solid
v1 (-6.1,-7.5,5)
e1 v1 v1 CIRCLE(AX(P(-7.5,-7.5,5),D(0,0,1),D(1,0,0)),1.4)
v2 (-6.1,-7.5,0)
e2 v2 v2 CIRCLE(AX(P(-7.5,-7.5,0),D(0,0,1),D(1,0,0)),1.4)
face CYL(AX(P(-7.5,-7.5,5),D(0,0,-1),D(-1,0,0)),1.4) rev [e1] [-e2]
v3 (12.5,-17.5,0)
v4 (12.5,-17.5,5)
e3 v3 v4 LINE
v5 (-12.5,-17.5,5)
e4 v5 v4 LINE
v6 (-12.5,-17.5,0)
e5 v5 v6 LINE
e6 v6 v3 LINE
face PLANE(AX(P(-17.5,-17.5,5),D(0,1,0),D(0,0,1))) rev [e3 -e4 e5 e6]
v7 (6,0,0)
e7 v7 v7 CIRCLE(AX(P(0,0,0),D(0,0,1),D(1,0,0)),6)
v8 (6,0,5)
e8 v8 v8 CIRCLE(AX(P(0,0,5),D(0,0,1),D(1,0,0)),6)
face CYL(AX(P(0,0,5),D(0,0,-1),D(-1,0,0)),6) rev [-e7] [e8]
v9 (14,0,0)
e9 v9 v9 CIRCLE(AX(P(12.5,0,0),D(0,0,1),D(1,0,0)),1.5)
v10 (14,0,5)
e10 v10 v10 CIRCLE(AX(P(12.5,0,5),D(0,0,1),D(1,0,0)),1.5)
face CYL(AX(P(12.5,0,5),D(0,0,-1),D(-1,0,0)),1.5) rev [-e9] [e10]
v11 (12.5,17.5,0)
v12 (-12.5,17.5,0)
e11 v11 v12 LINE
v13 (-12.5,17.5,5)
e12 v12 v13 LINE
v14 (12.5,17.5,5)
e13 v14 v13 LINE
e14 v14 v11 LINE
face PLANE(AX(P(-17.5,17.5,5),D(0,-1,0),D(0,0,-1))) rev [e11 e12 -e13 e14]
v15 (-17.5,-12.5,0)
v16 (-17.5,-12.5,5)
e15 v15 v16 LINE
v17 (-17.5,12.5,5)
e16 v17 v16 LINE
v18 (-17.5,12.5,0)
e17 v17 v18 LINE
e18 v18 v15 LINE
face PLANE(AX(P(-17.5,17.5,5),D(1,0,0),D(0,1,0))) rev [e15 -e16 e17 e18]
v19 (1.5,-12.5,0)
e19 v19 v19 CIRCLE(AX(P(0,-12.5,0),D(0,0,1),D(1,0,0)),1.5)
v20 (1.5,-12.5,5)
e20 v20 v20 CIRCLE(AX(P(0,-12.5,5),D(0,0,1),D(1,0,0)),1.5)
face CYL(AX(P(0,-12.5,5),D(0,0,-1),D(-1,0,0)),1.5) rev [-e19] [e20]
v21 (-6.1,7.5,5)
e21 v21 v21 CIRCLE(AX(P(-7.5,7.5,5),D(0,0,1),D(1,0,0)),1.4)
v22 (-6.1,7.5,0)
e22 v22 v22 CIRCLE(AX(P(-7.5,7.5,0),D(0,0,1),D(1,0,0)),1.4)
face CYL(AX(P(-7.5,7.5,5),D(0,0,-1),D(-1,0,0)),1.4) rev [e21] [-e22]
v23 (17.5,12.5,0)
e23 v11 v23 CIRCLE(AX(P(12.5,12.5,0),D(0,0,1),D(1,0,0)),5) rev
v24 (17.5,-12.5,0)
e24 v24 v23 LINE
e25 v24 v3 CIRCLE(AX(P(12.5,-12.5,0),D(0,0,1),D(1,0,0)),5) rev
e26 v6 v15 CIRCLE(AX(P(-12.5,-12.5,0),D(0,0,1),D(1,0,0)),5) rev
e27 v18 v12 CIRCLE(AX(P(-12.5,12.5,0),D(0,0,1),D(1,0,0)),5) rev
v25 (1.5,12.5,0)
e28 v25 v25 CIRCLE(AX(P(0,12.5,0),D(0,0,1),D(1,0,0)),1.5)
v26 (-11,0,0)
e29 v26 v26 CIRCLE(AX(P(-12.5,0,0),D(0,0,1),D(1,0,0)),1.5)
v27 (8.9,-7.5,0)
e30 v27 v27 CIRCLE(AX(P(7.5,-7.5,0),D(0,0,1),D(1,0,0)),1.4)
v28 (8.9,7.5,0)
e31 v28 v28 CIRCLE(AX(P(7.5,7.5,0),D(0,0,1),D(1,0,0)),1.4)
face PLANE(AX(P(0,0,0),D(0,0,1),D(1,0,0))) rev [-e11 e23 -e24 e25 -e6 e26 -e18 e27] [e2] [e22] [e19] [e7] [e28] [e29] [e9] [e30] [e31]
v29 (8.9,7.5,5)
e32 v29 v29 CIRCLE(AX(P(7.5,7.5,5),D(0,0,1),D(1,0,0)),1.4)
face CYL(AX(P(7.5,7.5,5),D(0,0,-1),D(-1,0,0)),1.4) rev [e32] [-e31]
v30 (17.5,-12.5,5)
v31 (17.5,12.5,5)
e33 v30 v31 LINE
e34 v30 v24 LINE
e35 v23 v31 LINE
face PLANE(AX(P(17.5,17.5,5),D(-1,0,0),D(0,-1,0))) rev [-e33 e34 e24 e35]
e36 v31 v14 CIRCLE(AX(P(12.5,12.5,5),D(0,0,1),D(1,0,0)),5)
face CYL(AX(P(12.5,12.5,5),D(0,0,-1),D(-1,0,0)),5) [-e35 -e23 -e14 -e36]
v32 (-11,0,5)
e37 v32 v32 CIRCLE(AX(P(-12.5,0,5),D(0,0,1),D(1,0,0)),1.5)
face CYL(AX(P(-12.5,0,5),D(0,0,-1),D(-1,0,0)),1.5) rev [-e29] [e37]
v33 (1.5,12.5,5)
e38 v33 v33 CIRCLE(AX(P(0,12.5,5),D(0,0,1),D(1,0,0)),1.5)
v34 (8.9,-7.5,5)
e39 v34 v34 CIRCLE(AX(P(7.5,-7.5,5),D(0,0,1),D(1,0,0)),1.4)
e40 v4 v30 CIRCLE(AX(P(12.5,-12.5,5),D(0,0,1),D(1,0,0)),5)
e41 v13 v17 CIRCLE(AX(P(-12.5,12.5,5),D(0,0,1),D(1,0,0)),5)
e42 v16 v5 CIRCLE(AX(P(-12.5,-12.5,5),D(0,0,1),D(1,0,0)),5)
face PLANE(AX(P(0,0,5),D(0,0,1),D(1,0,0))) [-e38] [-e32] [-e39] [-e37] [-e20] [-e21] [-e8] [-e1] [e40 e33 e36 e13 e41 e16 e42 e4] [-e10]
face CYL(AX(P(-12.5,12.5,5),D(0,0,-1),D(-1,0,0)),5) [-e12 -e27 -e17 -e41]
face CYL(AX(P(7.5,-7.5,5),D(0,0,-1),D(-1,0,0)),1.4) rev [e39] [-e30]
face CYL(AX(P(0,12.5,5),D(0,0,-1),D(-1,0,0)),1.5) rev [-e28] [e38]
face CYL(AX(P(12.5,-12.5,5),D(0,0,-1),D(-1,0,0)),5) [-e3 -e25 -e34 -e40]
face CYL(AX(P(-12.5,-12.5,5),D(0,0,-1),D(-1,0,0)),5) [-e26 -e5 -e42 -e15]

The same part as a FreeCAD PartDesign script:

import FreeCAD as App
import Part
import Sketcher


def edges_at(feature, points):
    """Names of the edges that pass closest to the given points."""
    edges = feature.Shape.Edges
    near = lambda p: min(range(len(edges)), key=lambda i: edges[i].distToShape(Part.Vertex(*p))[0])
    return sorted({f"Edge{near(p) + 1}" for p in points})

doc = App.newDocument("Part")
body = doc.addObject("PartDesign::Body", "Body")

sketch1 = body.newObject("Sketcher::SketchObject", "Sketch")
sketch1.AttachmentSupport = (doc.getObject("XY_Plane"), [""])
sketch1.MapMode = "FlatFace"
sketch1.addGeometry([
    Part.LineSegment(App.Vector(-17.5, 17.5, 0), App.Vector(-17.5, -17.5, 0)),
    Part.LineSegment(App.Vector(-17.5, -17.5, 0), App.Vector(17.5, -17.5, 0)),
    Part.LineSegment(App.Vector(17.5, -17.5, 0), App.Vector(17.5, 17.5, 0)),
    Part.LineSegment(App.Vector(17.5, 17.5, 0), App.Vector(-17.5, 17.5, 0)),
    Part.Circle(App.Vector(-7.5, -7.5, 0), App.Vector(0, 0, 1), 1.4),
    Part.Circle(App.Vector(0, -12.5, 0), App.Vector(0, 0, 1), 1.5),
    Part.Circle(App.Vector(7.5, -7.5, 0), App.Vector(0, 0, 1), 1.4),
    Part.Circle(App.Vector(-12.5, 0, 0), App.Vector(0, 0, 1), 1.5),
    Part.Circle(App.Vector(-7.5, 7.5, 0), App.Vector(0, 0, 1), 1.4),
    Part.Circle(App.Vector(0, 0, 0), App.Vector(0, 0, 1), 6),
    Part.Circle(App.Vector(12.5, 0, 0), App.Vector(0, 0, 1), 1.5),
    Part.Circle(App.Vector(0, 12.5, 0), App.Vector(0, 0, 1), 1.5),
    Part.Circle(App.Vector(7.5, 7.5, 0), App.Vector(0, 0, 1), 1.4),
], False)
sketch1.addConstraint([
    Sketcher.Constraint("Coincident", 0, 2, 1, 1),
    Sketcher.Constraint("Coincident", 1, 2, 2, 1),
    Sketcher.Constraint("Coincident", 2, 2, 3, 1),
    Sketcher.Constraint("Coincident", 3, 2, 0, 1),
    Sketcher.Constraint("Vertical", 0),
    Sketcher.Constraint("Horizontal", 1),
    Sketcher.Constraint("Vertical", 2),
    Sketcher.Constraint("Horizontal", 3),
    Sketcher.Constraint("Coincident", 9, 3, -1, 1),
    Sketcher.Constraint("Equal", 4, 6),
    Sketcher.Constraint("Equal", 5, 7),
    Sketcher.Constraint("Equal", 6, 8),
    Sketcher.Constraint("Equal", 7, 10),
    Sketcher.Constraint("Equal", 10, 11),
    Sketcher.Constraint("Equal", 8, 12),
    Sketcher.Constraint("Symmetric", 6, 3, 8, 3, -1, 1),
    Sketcher.Constraint("Symmetric", 7, 3, 10, 3, -1, 1),
    Sketcher.Constraint("Symmetric", 5, 3, 11, 3, -1, 1),
    Sketcher.Constraint("Symmetric", 4, 3, 12, 3, -1, 1),
    Sketcher.Constraint("Symmetric", 0, 2, 2, 2, -1, 1),
    Sketcher.Constraint("Symmetric", 4, 3, 6, 3, -2),
    Sketcher.Constraint("PointOnObject", 5, 3, -2),
    Sketcher.Constraint("PointOnObject", 7, 3, -1),
    Sketcher.Constraint("Equal", 3, 0),
    Sketcher.Constraint("Diameter", 5, 3.0),
    Sketcher.Constraint("Diameter", 9, 12.0),
    Sketcher.Constraint("Diameter", 4, 2.8),
    Sketcher.Constraint("DistanceX", 1, 1, 1, 2, 35.0),
    Sketcher.Constraint("DistanceY", 5, 3, 4, 3, 5.0),
    Sketcher.Constraint("DistanceX", 4, 3, 6, 3, 15.0),
    Sketcher.Constraint("DistanceX", 7, 3, 4, 3, 5.0),
    Sketcher.Constraint("DistanceY", 4, 3, 8, 3, 15.0),
])
pad1 = body.newObject("PartDesign::Pad", "Pad")
pad1.Profile = sketch1
pad1.Length = 5
doc.recompute()

fillet = body.newObject("PartDesign::Fillet", "Fillet")
fillet.Base = (pad1, edges_at(pad1, [
    (17.5, -17.5, 2.5),
    (-17.5, -17.5, 2.5),
    (-17.5, 17.5, 2.5),
    (17.5, 17.5, 2.5),
]))
fillet.Radius = 5

doc.recompute()
